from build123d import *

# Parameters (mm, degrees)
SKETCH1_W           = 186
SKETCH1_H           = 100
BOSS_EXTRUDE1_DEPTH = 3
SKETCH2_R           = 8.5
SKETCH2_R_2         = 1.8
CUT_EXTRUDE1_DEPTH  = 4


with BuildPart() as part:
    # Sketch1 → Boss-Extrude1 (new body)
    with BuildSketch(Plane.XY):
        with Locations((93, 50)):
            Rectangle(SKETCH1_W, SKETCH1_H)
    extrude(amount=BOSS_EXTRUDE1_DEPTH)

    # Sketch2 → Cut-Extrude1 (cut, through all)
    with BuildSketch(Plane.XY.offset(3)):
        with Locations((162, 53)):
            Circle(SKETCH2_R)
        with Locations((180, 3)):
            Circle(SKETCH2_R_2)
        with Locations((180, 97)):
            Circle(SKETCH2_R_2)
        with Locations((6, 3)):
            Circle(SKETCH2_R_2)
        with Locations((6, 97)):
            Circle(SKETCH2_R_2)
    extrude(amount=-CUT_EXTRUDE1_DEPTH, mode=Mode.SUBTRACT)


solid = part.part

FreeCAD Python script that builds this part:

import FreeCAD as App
import Part
import Sketcher

V = App.Vector


def add_polygon(sketch, points):
    """Adds a closed chain of lines whose ends are joined by coincident constraints."""
    first, n = sketch.GeometryCount, len(points)
    for a, b in zip(points, points[1:] + points[:1]):
        sketch.addGeometry(Part.LineSegment(App.Vector(*a, 0), App.Vector(*b, 0)), False)
    for i in range(n):
        sketch.addConstraint(Sketcher.Constraint("Coincident", first + i, 2, first + (i + 1) % n, 1))

doc = App.newDocument("Part")
body = doc.addObject("PartDesign::Body", "Body")

sketch1 = doc.addObject("Sketcher::SketchObject", "Sketch")
body.addObject(sketch1)
sketch1.AttachmentSupport = (doc.XY_Plane, [""])
sketch1.MapMode = "FlatFace"
add_polygon(sketch1, [(0, 100), (0, 0), (186, 0), (186, 100)])
sketch1.addConstraint(Sketcher.Constraint("Vertical", 0))
sketch1.addConstraint(Sketcher.Constraint("Horizontal", 1))
sketch1.addConstraint(Sketcher.Constraint("Vertical", 2))
sketch1.addConstraint(Sketcher.Constraint("Horizontal", 3))
sketch1.addConstraint(Sketcher.Constraint("Coincident", 0, 2, -1, 1))
sketch1.addConstraint(Sketcher.Constraint("DistanceX", 1, 1, 1, 2, 186.0))
sketch1.addConstraint(Sketcher.Constraint("DistanceY", 0, 2, 0, 1, 100.0))
pad1 = doc.addObject("PartDesign::Pad", "Pad")
body.addObject(pad1)
pad1.Profile = sketch1
pad1.Length = 3

sketch2 = doc.addObject("Sketcher::SketchObject", "Sketch001")
body.addObject(sketch2)
sketch2.AttachmentSupport = (doc.XY_Plane, [""])
sketch2.MapMode = "FlatFace"
sketch2.AttachmentOffset = App.Placement(V(0, 0, 3), App.Rotation())
sketch2.addGeometry(Part.Circle(V(162, 53, 0), V(0, 0, 1), 8.5), False)
sketch2.addGeometry(Part.Circle(V(180, 3, 0), V(0, 0, 1), 1.8), False)
sketch2.addGeometry(Part.Circle(V(180, 97, 0), V(0, 0, 1), 1.8), False)
sketch2.addGeometry(Part.Circle(V(6, 3, 0), V(0, 0, 1), 1.8), False)
sketch2.addGeometry(Part.Circle(V(6, 97, 0), V(0, 0, 1), 1.8), False)
sketch2.addConstraint(Sketcher.Constraint("Equal", 1, 2))
sketch2.addConstraint(Sketcher.Constraint("Equal", 2, 3))
sketch2.addConstraint(Sketcher.Constraint("Equal", 3, 4))
sketch2.addConstraint(Sketcher.Constraint("Horizontal", 1, 3, 3, 3))
sketch2.addConstraint(Sketcher.Constraint("Horizontal", 2, 3, 4, 3))
sketch2.addConstraint(Sketcher.Constraint("Vertical", 1, 3, 2, 3))
sketch2.addConstraint(Sketcher.Constraint("Vertical", 3, 3, 4, 3))
sketch2.addConstraint(Sketcher.Constraint("Diameter", 0, 17.0))
sketch2.addConstraint(Sketcher.Constraint("Diameter", 1, 3.6))
sketch2.addConstraint(Sketcher.Constraint("DistanceX", -1, 1, 0, 3, 162.0))
sketch2.addConstraint(Sketcher.Constraint("DistanceY", -1, 1, 0, 3, 53.0))
sketch2.addConstraint(Sketcher.Constraint("DistanceX", -1, 1, 1, 3, 180.0))
sketch2.addConstraint(Sketcher.Constraint("DistanceY", -1, 1, 1, 3, 3.0))
sketch2.addConstraint(Sketcher.Constraint("DistanceY", -1, 1, 2, 3, 97.0))
sketch2.addConstraint(Sketcher.Constraint("DistanceX", -1, 1, 3, 3, 6.0))
pocket1 = doc.addObject("PartDesign::Pocket", "Pocket")
body.addObject(pocket1)
pocket1.Profile = sketch2
pocket1.Type = "ThroughAll"

doc.recompute()
